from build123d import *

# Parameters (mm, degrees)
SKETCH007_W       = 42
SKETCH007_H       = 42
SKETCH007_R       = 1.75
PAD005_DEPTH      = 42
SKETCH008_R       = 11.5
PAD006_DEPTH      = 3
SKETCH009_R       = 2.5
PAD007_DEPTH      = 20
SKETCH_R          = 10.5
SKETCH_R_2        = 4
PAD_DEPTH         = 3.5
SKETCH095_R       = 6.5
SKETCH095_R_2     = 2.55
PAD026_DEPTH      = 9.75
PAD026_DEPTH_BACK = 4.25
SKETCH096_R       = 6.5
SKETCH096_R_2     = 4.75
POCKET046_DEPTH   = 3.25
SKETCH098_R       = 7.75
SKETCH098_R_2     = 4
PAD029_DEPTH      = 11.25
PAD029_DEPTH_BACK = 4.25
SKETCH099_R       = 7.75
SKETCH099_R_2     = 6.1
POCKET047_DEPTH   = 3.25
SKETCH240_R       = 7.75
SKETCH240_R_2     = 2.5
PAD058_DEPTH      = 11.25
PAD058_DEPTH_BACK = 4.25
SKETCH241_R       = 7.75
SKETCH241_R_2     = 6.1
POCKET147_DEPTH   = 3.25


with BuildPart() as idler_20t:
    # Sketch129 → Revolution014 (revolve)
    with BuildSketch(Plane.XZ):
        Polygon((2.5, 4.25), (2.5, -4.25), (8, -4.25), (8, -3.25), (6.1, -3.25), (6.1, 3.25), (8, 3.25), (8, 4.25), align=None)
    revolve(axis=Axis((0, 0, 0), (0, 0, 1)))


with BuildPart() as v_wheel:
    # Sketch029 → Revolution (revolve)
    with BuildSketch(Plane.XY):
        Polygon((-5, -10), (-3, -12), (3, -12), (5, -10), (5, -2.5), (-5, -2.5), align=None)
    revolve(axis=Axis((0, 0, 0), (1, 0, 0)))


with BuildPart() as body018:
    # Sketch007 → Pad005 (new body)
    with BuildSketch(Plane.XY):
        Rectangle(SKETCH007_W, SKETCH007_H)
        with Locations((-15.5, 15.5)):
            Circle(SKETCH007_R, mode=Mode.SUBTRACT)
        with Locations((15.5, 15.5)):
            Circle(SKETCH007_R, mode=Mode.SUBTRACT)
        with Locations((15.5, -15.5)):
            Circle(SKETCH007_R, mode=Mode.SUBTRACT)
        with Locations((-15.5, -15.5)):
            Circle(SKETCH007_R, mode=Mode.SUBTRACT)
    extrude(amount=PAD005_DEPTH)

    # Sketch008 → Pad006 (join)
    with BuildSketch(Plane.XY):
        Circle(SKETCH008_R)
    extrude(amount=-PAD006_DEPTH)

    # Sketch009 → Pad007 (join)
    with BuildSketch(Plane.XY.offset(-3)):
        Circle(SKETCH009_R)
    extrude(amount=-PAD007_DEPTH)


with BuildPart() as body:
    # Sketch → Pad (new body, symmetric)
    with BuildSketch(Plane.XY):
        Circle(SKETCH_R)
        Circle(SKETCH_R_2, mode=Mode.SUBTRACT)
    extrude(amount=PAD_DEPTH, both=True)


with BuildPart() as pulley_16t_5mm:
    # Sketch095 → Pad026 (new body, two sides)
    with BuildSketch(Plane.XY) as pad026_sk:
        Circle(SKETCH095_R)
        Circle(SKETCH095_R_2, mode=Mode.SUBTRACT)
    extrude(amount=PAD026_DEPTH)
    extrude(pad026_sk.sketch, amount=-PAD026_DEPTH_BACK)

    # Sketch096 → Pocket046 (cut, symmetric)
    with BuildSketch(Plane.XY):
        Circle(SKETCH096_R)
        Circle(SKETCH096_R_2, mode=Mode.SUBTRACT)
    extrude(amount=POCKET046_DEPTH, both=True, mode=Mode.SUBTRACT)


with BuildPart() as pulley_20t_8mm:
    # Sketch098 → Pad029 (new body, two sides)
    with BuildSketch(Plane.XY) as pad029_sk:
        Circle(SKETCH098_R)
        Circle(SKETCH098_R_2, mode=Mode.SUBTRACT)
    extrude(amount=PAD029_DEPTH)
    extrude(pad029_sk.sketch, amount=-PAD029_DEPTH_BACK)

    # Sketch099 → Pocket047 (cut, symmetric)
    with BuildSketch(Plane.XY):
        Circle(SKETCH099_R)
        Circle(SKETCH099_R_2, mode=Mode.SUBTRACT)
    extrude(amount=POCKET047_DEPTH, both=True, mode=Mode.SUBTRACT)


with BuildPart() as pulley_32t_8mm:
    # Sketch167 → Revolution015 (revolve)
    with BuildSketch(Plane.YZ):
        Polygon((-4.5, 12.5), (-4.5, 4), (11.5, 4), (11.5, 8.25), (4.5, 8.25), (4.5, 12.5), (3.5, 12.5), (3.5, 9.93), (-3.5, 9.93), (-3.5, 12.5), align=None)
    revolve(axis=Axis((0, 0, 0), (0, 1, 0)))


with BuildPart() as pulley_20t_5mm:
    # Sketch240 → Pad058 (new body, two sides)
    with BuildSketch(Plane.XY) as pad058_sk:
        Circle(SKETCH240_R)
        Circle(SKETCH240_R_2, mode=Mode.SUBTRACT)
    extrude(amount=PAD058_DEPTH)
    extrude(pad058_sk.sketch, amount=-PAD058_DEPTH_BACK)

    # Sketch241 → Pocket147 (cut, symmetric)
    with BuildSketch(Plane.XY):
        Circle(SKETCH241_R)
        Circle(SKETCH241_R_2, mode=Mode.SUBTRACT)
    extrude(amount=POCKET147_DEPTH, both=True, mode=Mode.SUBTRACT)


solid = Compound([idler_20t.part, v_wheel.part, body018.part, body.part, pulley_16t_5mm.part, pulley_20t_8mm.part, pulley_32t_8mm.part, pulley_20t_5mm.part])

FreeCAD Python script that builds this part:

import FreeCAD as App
import Part
import Sketcher

doc = App.newDocument("Part")
params = doc.addObject("Spreadsheet::Sheet", "Params")
for row, (alias, value) in enumerate([
    ("sketch1_height", "1 mm"),
    ("sketch1_width", "5.5 mm"),
    ("sketch1_width2", "1.9 mm"),
    ("sketch1_height2", "8.5 mm"),
    ("revolution_angle", "360 deg"),
    ("sketch2_width", "6 mm"),
    ("sketch2_width2", "10 mm"),
    ("sketch2_height", "7.5 mm"),
    ("revolution2_angle", "360 deg"),
    ("sketch3_diameter", "3.5 mm"),
    ("sketch3_width", "42 mm"),
    ("pad1_length", "42 mm"),
    ("sketch4_diameter", "23 mm"),
    ("pad2_length", "3 mm"),
    ("sketch5_diameter", "5 mm"),
    ("pad3_length", "20 mm"),
    ("sketch6_diameter", "21 mm"),
    ("sketch6_diameter2", "8 mm"),
    ("pad4_length", "7 mm"),
    ("sketch7_diameter", "13 mm"),
    ("sketch7_diameter2", "5.1 mm"),
    ("pad5_length", "9.75 mm"),
    ("pad5_length2", "4.25 mm"),
    ("sketch8_diameter", "13 mm"),
    ("sketch8_diameter2", "9.5 mm"),
    ("pocket1_length", "6.5 mm"),
    ("sketch9_diameter", "8 mm"),
    ("sketch9_diameter2", "15.5 mm"),
    ("pad6_length", "11.25 mm"),
    ("pad6_length2", "4.25 mm"),
    ("sketch10_diameter", "15.5 mm"),
    ("sketch10_diameter2", "12.2 mm"),
    ("pocket2_length", "6.5 mm"),
    ("sketch11_width", "16 mm"),
    ("sketch11_width2", "7 mm"),
    ("sketch11_height", "8.5 mm"),
    ("sketch11_height2", "2.57 mm"),
    ("revolution3_angle", "360 deg"),
    ("sketch12_diameter", "5 mm"),
    ("sketch12_diameter2", "15.5 mm"),
    ("pad7_length", "11.25 mm"),
    ("pad7_length2", "4.25 mm"),
    ("sketch13_diameter", "15.5 mm"),
    ("sketch13_diameter2", "12.2 mm"),
    ("pocket3_length", "6.5 mm"),
], start=1):
    params.set(f"A{row}", alias)
    params.set(f"B{row}", "=" + value)
    params.setAlias(f"B{row}", alias)

body = doc.addObject("PartDesign::Body", "Body")

# Sketch on XZ plane
sketch1 = doc.addObject("Sketcher::SketchObject", "Sketch")
body.addObject(sketch1)
sketch1.AttachmentSupport = (doc.XZ_Plane, [""])
sketch1.MapMode = "FlatFace"
sketch1.addGeometry([
    Part.LineSegment(App.Vector(2.5, 4.2, 0), App.Vector(2.5, -4.2, 0)),  # 0
    Part.LineSegment(App.Vector(2.5, -4.2, 0), App.Vector(8, -4.2, 0)),  # 1
    Part.LineSegment(App.Vector(8, -4.2, 0), App.Vector(8, -3.2, 0)),  # 2
    Part.LineSegment(App.Vector(8, -3.2, 0), App.Vector(6.1, -3.2, 0)),  # 3
    Part.LineSegment(App.Vector(6.1, -3.2, 0), App.Vector(6.1, 3.2, 0)),  # 4
    Part.LineSegment(App.Vector(6.1, 3.2, 0), App.Vector(8, 3.2, 0)),  # 5
    Part.LineSegment(App.Vector(8, 3.2, 0), App.Vector(8, 4.2, 0)),  # 6
    Part.LineSegment(App.Vector(8, 4.2, 0), App.Vector(2.5, 4.2, 0)),  # 7
], False)
sketch1.addConstraint([
    Sketcher.Constraint("Coincident", 0, 2, 1, 1),
    Sketcher.Constraint("Coincident", 1, 2, 2, 1),
    Sketcher.Constraint("Coincident", 2, 2, 3, 1),
    Sketcher.Constraint("Coincident", 3, 2, 4, 1),
    Sketcher.Constraint("Coincident", 4, 2, 5, 1),
    Sketcher.Constraint("Coincident", 5, 2, 6, 1),
    Sketcher.Constraint("Coincident", 6, 2, 7, 1),
    Sketcher.Constraint("Coincident", 7, 2, 0, 1),
    Sketcher.Constraint("Vertical", 0),
    Sketcher.Constraint("Horizontal", 1),
    Sketcher.Constraint("Vertical", 2),
    Sketcher.Constraint("Horizontal", 3),
    Sketcher.Constraint("Vertical", 4),
    Sketcher.Constraint("Horizontal", 5),
    Sketcher.Constraint("Vertical", 6),
    Sketcher.Constraint("Horizontal", 7),
    Sketcher.Constraint("Symmetric", 2, 2, 5, 2, -1),
    Sketcher.Constraint("Equal", 2, 6),
    Sketcher.Constraint("DistanceY", 2, 1, 2, 2, 1.0),
    Sketcher.Constraint("DistanceX", 1, 1, 1, 2, 5.5),
    Sketcher.Constraint("DistanceX", 3, 2, 3, 1, 1.9),
    Sketcher.Constraint("DistanceY", 0, 2, 0, 1, 8.5),
    Sketcher.Constraint("DistanceX", -1, 1, 1, 2, 8.0),
])
sketch1.setExpression("Constraints[18]", "Params.sketch1_height")
sketch1.setExpression("Constraints[19]", "Params.sketch1_width")
sketch1.setExpression("Constraints[20]", "Params.sketch1_width2")
sketch1.setExpression("Constraints[21]", "Params.sketch1_height2")
revolution = doc.addObject("PartDesign::Revolution", "Revolution")
body.addObject(revolution)
revolution.Profile = sketch1
revolution.ReferenceAxis = (sketch1, ["V_Axis"])
revolution.setExpression("Angle", "Params.revolution_angle")
body2 = doc.addObject("PartDesign::Body", "Body001")

# Sketch on XY plane
sketch2 = doc.addObject("Sketcher::SketchObject", "Sketch001")
body2.addObject(sketch2)
sketch2.AttachmentSupport = (doc.getObject("XY_Plane001"), [""])
sketch2.MapMode = "FlatFace"
sketch2.addGeometry([
    Part.LineSegment(App.Vector(-5, -10, 0), App.Vector(-3, -12, 0)),  # 0
    Part.LineSegment(App.Vector(-3, -12, 0), App.Vector(3, -12, 0)),  # 1
    Part.LineSegment(App.Vector(3, -12, 0), App.Vector(5, -10, 0)),  # 2
    Part.LineSegment(App.Vector(5, -10, 0), App.Vector(5, -2.5, 0)),  # 3
    Part.LineSegment(App.Vector(5, -2.5, 0), App.Vector(-5, -2.5, 0)),  # 4
    Part.LineSegment(App.Vector(-5, -2.5, 0), App.Vector(-5, -10, 0)),  # 5
], False)
sketch2.addConstraint([
    Sketcher.Constraint("Coincident", 0, 2, 1, 1),
    Sketcher.Constraint("Coincident", 1, 2, 2, 1),
    Sketcher.Constraint("Coincident", 2, 2, 3, 1),
    Sketcher.Constraint("Coincident", 3, 2, 4, 1),
    Sketcher.Constraint("Coincident", 4, 2, 5, 1),
    Sketcher.Constraint("Coincident", 5, 2, 0, 1),
    Sketcher.Constraint("Horizontal", 1),
    Sketcher.Constraint("Vertical", 3),
    Sketcher.Constraint("Horizontal", 4),
    Sketcher.Constraint("Vertical", 5),
    Sketcher.Constraint("Symmetric", 2, 2, 5, 2, -2),
    Sketcher.Constraint("Perpendicular", 0, 2),
    Sketcher.Constraint("Equal", 0, 2),
    Sketcher.Constraint("DistanceX", 1, 1, 1, 2, 6.0),
    Sketcher.Constraint("DistanceX", 4, 2, 4, 1, 10.0),
    Sketcher.Constraint("DistanceY", 3, 1, 3, 2, 7.5),
    Sketcher.Constraint("DistanceY", 0, 2, -1, 1, 12.0),
])
sketch2.setExpression("Constraints[13]", "Params.sketch2_width")
sketch2.setExpression("Constraints[14]", "Params.sketch2_width2")
sketch2.setExpression("Constraints[15]", "Params.sketch2_height")
revolution2 = doc.addObject("PartDesign::Revolution", "Revolution001")
body2.addObject(revolution2)
revolution2.Profile = sketch2
revolution2.ReferenceAxis = (sketch2, ["H_Axis"])
revolution2.setExpression("Angle", "Params.revolution2_angle")
body3 = doc.addObject("PartDesign::Body", "Body002")

# Sketch on XY plane
sketch3 = doc.addObject("Sketcher::SketchObject", "Sketch002")
body3.addObject(sketch3)
sketch3.AttachmentSupport = (doc.getObject("XY_Plane002"), [""])
sketch3.MapMode = "FlatFace"
sketch3.addGeometry([
    Part.LineSegment(App.Vector(-21, 21, 0), App.Vector(-21, -21, 0)),  # 0
    Part.LineSegment(App.Vector(-21, -21, 0), App.Vector(21, -21, 0)),  # 1
    Part.LineSegment(App.Vector(21, -21, 0), App.Vector(21, 21, 0)),  # 2
    Part.LineSegment(App.Vector(21, 21, 0), App.Vector(-21, 21, 0)),  # 3
    Part.Circle(App.Vector(-15.5, -15.5, 0), App.Vector(0, 0, 1), 1.8),  # 4
    Part.Circle(App.Vector(15.5, -15.5, 0), App.Vector(0, 0, 1), 1.8),  # 5
    Part.Circle(App.Vector(-15.5, 15.5, 0), App.Vector(0, 0, 1), 1.8),  # 6
    Part.Circle(App.Vector(15.5, 15.5, 0), App.Vector(0, 0, 1), 1.8),  # 7
], False)
sketch3.addConstraint([
    Sketcher.Constraint("Coincident", 0, 2, 1, 1),
    Sketcher.Constraint("Coincident", 1, 2, 2, 1),
    Sketcher.Constraint("Coincident", 2, 2, 3, 1),
    Sketcher.Constraint("Coincident", 3, 2, 0, 1),
    Sketcher.Constraint("Vertical", 0),
    Sketcher.Constraint("Horizontal", 1),
    Sketcher.Constraint("Vertical", 2),
    Sketcher.Constraint("Horizontal", 3),
    Sketcher.Constraint("Equal", 4, 5),
    Sketcher.Constraint("Equal", 5, 6),
    Sketcher.Constraint("Equal", 6, 7),
    Sketcher.Constraint("Symmetric", 5, 3, 6, 3, -1, 1),
    Sketcher.Constraint("Symmetric", 4, 3, 7, 3, -1, 1),
    Sketcher.Constraint("Symmetric", 0, 2, 2, 2, -1, 1),
    Sketcher.Constraint("Symmetric", 4, 3, 5, 3, -2),
    Sketcher.Constraint("Equal", 3, 0),
    Sketcher.Constraint("Diameter", 4, 3.5),
    Sketcher.Constraint("DistanceX", 1, 1, 1, 2, 42.0),
    Sketcher.Constraint("DistanceX", 4, 3, 5, 3, 31.0),
    Sketcher.Constraint("DistanceY", 4, 3, 6, 3, 31.0),
])
sketch3.setExpression("Constraints[16]", "Params.sketch3_diameter")
sketch3.setExpression("Constraints[17]", "Params.sketch3_width")
pad1 = doc.addObject("PartDesign::Pad", "Pad")
body3.addObject(pad1)
pad1.Profile = sketch3
pad1.setExpression("Length", "Params.pad1_length")

# Sketch on XY plane
sketch4 = doc.addObject("Sketcher::SketchObject", "Sketch003")
body3.addObject(sketch4)
sketch4.AttachmentSupport = (doc.getObject("XY_Plane002"), [""])
sketch4.MapMode = "FlatFace"
sketch4.addGeometry(Part.Circle(App.Vector(0, 0, 0), App.Vector(0, 0, 1), 12), False)
sketch4.addConstraint([
    Sketcher.Constraint("Coincident", 0, 3, -1, 1),
    Sketcher.Constraint("Diameter", 0, 23.0),
])
sketch4.setExpression("Constraints[1]", "Params.sketch4_diameter")
pad2 = doc.addObject("PartDesign::Pad", "Pad001")
body3.addObject(pad2)
pad2.Profile = sketch4
pad2.setExpression("Length", "Params.pad2_length")
pad2.Reversed = True

# Sketch on XY plane
sketch5 = doc.addObject("Sketcher::SketchObject", "Sketch004")
body3.addObject(sketch5)
sketch5.AttachmentSupport = (doc.getObject("XY_Plane002"), [""])
sketch5.MapMode = "FlatFace"
sketch5.AttachmentOffset = App.Placement(App.Vector(0, 0, -3), App.Rotation())
sketch5.addGeometry(Part.Circle(App.Vector(0, 0, 0), App.Vector(0, 0, 1), 2.5), False)
sketch5.addConstraint([
    Sketcher.Constraint("Coincident", 0, 3, -1, 1),
    Sketcher.Constraint("Diameter", 0, 5.0),
])
sketch5.setExpression("Constraints[1]", "Params.sketch5_diameter")
pad3 = doc.addObject("PartDesign::Pad", "Pad002")
body3.addObject(pad3)
pad3.Profile = sketch5
pad3.setExpression("Length", "Params.pad3_length")
pad3.Reversed = True
body4 = doc.addObject("PartDesign::Body", "Body003")

# Sketch on XY plane
sketch6 = doc.addObject("Sketcher::SketchObject", "Sketch005")
body4.addObject(sketch6)
sketch6.AttachmentSupport = (doc.getObject("XY_Plane003"), [""])
sketch6.MapMode = "FlatFace"
sketch6.addGeometry([
    Part.Circle(App.Vector(0, 0, 0), App.Vector(0, 0, 1), 10.5),
    Part.Circle(App.Vector(0, 0, 0), App.Vector(0, 0, 1), 4),
], False)
sketch6.addConstraint([
    Sketcher.Constraint("Coincident", 0, 3, -1, 1),
    Sketcher.Constraint("Coincident", 1, 3, -1, 1),
    Sketcher.Constraint("Diameter", 0, 21.0),
    Sketcher.Constraint("Diameter", 1, 8.0),
])
sketch6.setExpression("Constraints[2]", "Params.sketch6_diameter")
sketch6.setExpression("Constraints[3]", "Params.sketch6_diameter2")
pad4 = doc.addObject("PartDesign::Pad", "Pad003")
body4.addObject(pad4)
pad4.Profile = sketch6
pad4.setExpression("Length", "Params.pad4_length")
pad4.Midplane = True
body5 = doc.addObject("PartDesign::Body", "Body004")

# Sketch on XY plane
sketch7 = doc.addObject("Sketcher::SketchObject", "Sketch006")
body5.addObject(sketch7)
sketch7.AttachmentSupport = (doc.getObject("XY_Plane004"), [""])
sketch7.MapMode = "FlatFace"
sketch7.addGeometry([
    Part.Circle(App.Vector(0, 0, 0), App.Vector(0, 0, 1), 6.5),
    Part.Circle(App.Vector(0, 0, 0), App.Vector(0, 0, 1), 2.5),
], False)
sketch7.addConstraint([
    Sketcher.Constraint("Coincident", 0, 3, -1, 1),
    Sketcher.Constraint("Coincident", 1, 3, -1, 1),
    Sketcher.Constraint("Diameter", 0, 13.0),
    Sketcher.Constraint("Diameter", 1, 5.1),
])
sketch7.setExpression("Constraints[2]", "Params.sketch7_diameter")
sketch7.setExpression("Constraints[3]", "Params.sketch7_diameter2")
pad5 = doc.addObject("PartDesign::Pad", "Pad004")
body5.addObject(pad5)
pad5.Profile = sketch7
pad5.Type = "TwoLengths"
pad5.setExpression("Length", "Params.pad5_length")
pad5.setExpression("Length2", "Params.pad5_length2")

# Sketch on XY plane
sketch8 = doc.addObject("Sketcher::SketchObject", "Sketch007")
body5.addObject(sketch8)
sketch8.AttachmentSupport = (doc.getObject("XY_Plane004"), [""])
sketch8.MapMode = "FlatFace"
sketch8.addGeometry([
    Part.Circle(App.Vector(0, 0, 0), App.Vector(0, 0, 1), 6.5),
    Part.Circle(App.Vector(0, 0, 0), App.Vector(0, 0, 1), 4.8),
], False)
sketch8.addConstraint([
    Sketcher.Constraint("Coincident", 0, 3, -1, 1),
    Sketcher.Constraint("Coincident", 1, 3, -1, 1),
    Sketcher.Constraint("Diameter", 0, 13.0),
    Sketcher.Constraint("Diameter", 1, 9.5),
])
sketch8.setExpression("Constraints[2]", "Params.sketch8_diameter")
sketch8.setExpression("Constraints[3]", "Params.sketch8_diameter2")
pocket1 = doc.addObject("PartDesign::Pocket", "Pocket")
body5.addObject(pocket1)
pocket1.Profile = sketch8
pocket1.setExpression("Length", "Params.pocket1_length")
pocket1.Midplane = True
body6 = doc.addObject("PartDesign::Body", "Body005")

# Sketch on XY plane
sketch9 = doc.addObject("Sketcher::SketchObject", "Sketch008")
body6.addObject(sketch9)
sketch9.AttachmentSupport = (doc.getObject("XY_Plane005"), [""])
sketch9.MapMode = "FlatFace"
sketch9.addGeometry([
    Part.Circle(App.Vector(0, 0, 0), App.Vector(0, 0, 1), 7.8),
    Part.Circle(App.Vector(0, 0, 0), App.Vector(0, 0, 1), 4),
], False)
sketch9.addConstraint([
    Sketcher.Constraint("Coincident", 0, 3, -1, 1),
    Sketcher.Constraint("Coincident", 1, 3, -1, 1),
    Sketcher.Constraint("Diameter", 1, 8.0),
    Sketcher.Constraint("Diameter", 0, 15.5),
])
sketch9.setExpression("Constraints[2]", "Params.sketch9_diameter")
sketch9.setExpression("Constraints[3]", "Params.sketch9_diameter2")
pad6 = doc.addObject("PartDesign::Pad", "Pad005")
body6.addObject(pad6)
pad6.Profile = sketch9
pad6.Type = "TwoLengths"
pad6.setExpression("Length", "Params.pad6_length")
pad6.setExpression("Length2", "Params.pad6_length2")

# Sketch on XY plane
sketch10 = doc.addObject("Sketcher::SketchObject", "Sketch009")
body6.addObject(sketch10)
sketch10.AttachmentSupport = (doc.getObject("XY_Plane005"), [""])
sketch10.MapMode = "FlatFace"
sketch10.addGeometry([
    Part.Circle(App.Vector(0, 0, 0), App.Vector(0, 0, 1), 8),
    Part.Circle(App.Vector(0, 0, 0), App.Vector(0, 0, 1), 6),
], False)
sketch10.addConstraint([
    Sketcher.Constraint("Coincident", 0, 3, -1, 1),
    Sketcher.Constraint("Coincident", 1, 3, -1, 1),
    Sketcher.Constraint("Diameter", 0, 15.5),
    Sketcher.Constraint("Diameter", 1, 12.2),
])
sketch10.setExpression("Constraints[2]", "Params.sketch10_diameter")
sketch10.setExpression("Constraints[3]", "Params.sketch10_diameter2")
pocket2 = doc.addObject("PartDesign::Pocket", "Pocket001")
body6.addObject(pocket2)
pocket2.Profile = sketch10
pocket2.setExpression("Length", "Params.pocket2_length")
pocket2.Midplane = True
body7 = doc.addObject("PartDesign::Body", "Body006")

# Sketch on YZ plane
sketch11 = doc.addObject("Sketcher::SketchObject", "Sketch010")
body7.addObject(sketch11)
sketch11.AttachmentSupport = (doc.getObject("YZ_Plane006"), [""])
sketch11.MapMode = "FlatFace"
sketch11.addGeometry([
    Part.LineSegment(App.Vector(-4.5, 12.5, 0), App.Vector(-4.5, 4, 0)),  # 0
    Part.LineSegment(App.Vector(-4.5, 4, 0), App.Vector(11.5, 4, 0)),  # 1
    Part.LineSegment(App.Vector(11.5, 4, 0), App.Vector(11.5, 8.2, 0)),  # 2
    Part.LineSegment(App.Vector(11.5, 8.2, 0), App.Vector(4.5, 8.2, 0)),  # 3
    Part.LineSegment(App.Vector(4.5, 8.2, 0), App.Vector(4.5, 12.5, 0)),  # 4
    Part.LineSegment(App.Vector(4.5, 12.5, 0), App.Vector(3.5, 12.5, 0)),  # 5
    Part.LineSegment(App.Vector(3.5, 12.5, 0), App.Vector(3.5, 9.9, 0)),  # 6
    Part.LineSegment(App.Vector(3.5, 9.9, 0), App.Vector(-3.5, 9.9, 0)),  # 7
    Part.LineSegment(App.Vector(-3.5, 9.9, 0), App.Vector(-3.5, 12.5, 0)),  # 8
    Part.LineSegment(App.Vector(-3.5, 12.5, 0), App.Vector(-4.5, 12.5, 0)),  # 9
], False)
sketch11.addConstraint([
    Sketcher.Constraint("Coincident", 0, 2, 1, 1),
    Sketcher.Constraint("Coincident", 1, 2, 2, 1),
    Sketcher.Constraint("Coincident", 2, 2, 3, 1),
    Sketcher.Constraint("Coincident", 3, 2, 4, 1),
    Sketcher.Constraint("Coincident", 4, 2, 5, 1),
    Sketcher.Constraint("Coincident", 5, 2, 6, 1),
    Sketcher.Constraint("Coincident", 6, 2, 7, 1),
    Sketcher.Constraint("Coincident", 7, 2, 8, 1),
    Sketcher.Constraint("Coincident", 8, 2, 9, 1),
    Sketcher.Constraint("Coincident", 9, 2, 0, 1),
    Sketcher.Constraint("Vertical", 0),
    Sketcher.Constraint("Horizontal", 1),
    Sketcher.Constraint("Vertical", 2),
    Sketcher.Constraint("Horizontal", 3),
    Sketcher.Constraint("Vertical", 4),
    Sketcher.Constraint("Horizontal", 5),
    Sketcher.Constraint("Vertical", 6),
    Sketcher.Constraint("Horizontal", 7),
    Sketcher.Constraint("Vertical", 8),
    Sketcher.Constraint("Horizontal", 9),
    Sketcher.Constraint("Symmetric", 5, 2, 8, 2, -2),
    Sketcher.Constraint("Equal", 3, 7),
    Sketcher.Constraint("Equal", 5, 9),
    Sketcher.Constraint("Equal", 2, 4),
    Sketcher.Constraint("DistanceX", 1, 1, 1, 2, 16.0),
    Sketcher.Constraint("DistanceX", 3, 2, 3, 1, 7.0),
    Sketcher.Constraint("DistanceY", 0, 2, 0, 1, 8.5),
    Sketcher.Constraint("DistanceY", -1, 1, 0, 2, 4.0),
    Sketcher.Constraint("DistanceY", 6, 2, 6, 1, 2.57),
])
sketch11.setExpression("Constraints[24]", "Params.sketch11_width")
sketch11.setExpression("Constraints[25]", "Params.sketch11_width2")
sketch11.setExpression("Constraints[26]", "Params.sketch11_height")
sketch11.setExpression("Constraints[28]", "Params.sketch11_height2")
revolution3 = doc.addObject("PartDesign::Revolution", "Revolution002")
body7.addObject(revolution3)
revolution3.Profile = sketch11
revolution3.ReferenceAxis = (sketch11, ["H_Axis"])
revolution3.setExpression("Angle", "Params.revolution3_angle")
body8 = doc.addObject("PartDesign::Body", "Body007")

# Sketch on XY plane
sketch12 = doc.addObject("Sketcher::SketchObject", "Sketch011")
body8.addObject(sketch12)
sketch12.AttachmentSupport = (doc.getObject("XY_Plane007"), [""])
sketch12.MapMode = "FlatFace"
sketch12.addGeometry([
    Part.Circle(App.Vector(0, 0, 0), App.Vector(0, 0, 1), 7.8),
    Part.Circle(App.Vector(0, 0, 0), App.Vector(0, 0, 1), 2.5),
], False)
sketch12.addConstraint([
    Sketcher.Constraint("Coincident", 0, 3, -1, 1),
    Sketcher.Constraint("Coincident", 1, 3, -1, 1),
    Sketcher.Constraint("Diameter", 1, 5.0),
    Sketcher.Constraint("Diameter", 0, 15.5),
])
sketch12.setExpression("Constraints[2]", "Params.sketch12_diameter")
sketch12.setExpression("Constraints[3]", "Params.sketch12_diameter2")
pad7 = doc.addObject("PartDesign::Pad", "Pad006")
body8.addObject(pad7)
pad7.Profile = sketch12
pad7.Type = "TwoLengths"
pad7.setExpression("Length", "Params.pad7_length")
pad7.setExpression("Length2", "Params.pad7_length2")

# Sketch on XY plane
sketch13 = doc.addObject("Sketcher::SketchObject", "Sketch012")
body8.addObject(sketch13)
sketch13.AttachmentSupport = (doc.getObject("XY_Plane007"), [""])
sketch13.MapMode = "FlatFace"
sketch13.addGeometry([
    Part.Circle(App.Vector(0, 0, 0), App.Vector(0, 0, 1), 8),
    Part.Circle(App.Vector(0, 0, 0), App.Vector(0, 0, 1), 6),
], False)
sketch13.addConstraint([
    Sketcher.Constraint("Coincident", 0, 3, -1, 1),
    Sketcher.Constraint("Coincident", 1, 3, -1, 1),
    Sketcher.Constraint("Diameter", 0, 15.5),
    Sketcher.Constraint("Diameter", 1, 12.2),
])
sketch13.setExpression("Constraints[2]", "Params.sketch13_diameter")
sketch13.setExpression("Constraints[3]", "Params.sketch13_diameter2")
pocket3 = doc.addObject("PartDesign::Pocket", "Pocket002")
body8.addObject(pocket3)
pocket3.Profile = sketch13
pocket3.setExpression("Length", "Params.pocket3_length")
pocket3.Midplane = True

doc.recompute()
